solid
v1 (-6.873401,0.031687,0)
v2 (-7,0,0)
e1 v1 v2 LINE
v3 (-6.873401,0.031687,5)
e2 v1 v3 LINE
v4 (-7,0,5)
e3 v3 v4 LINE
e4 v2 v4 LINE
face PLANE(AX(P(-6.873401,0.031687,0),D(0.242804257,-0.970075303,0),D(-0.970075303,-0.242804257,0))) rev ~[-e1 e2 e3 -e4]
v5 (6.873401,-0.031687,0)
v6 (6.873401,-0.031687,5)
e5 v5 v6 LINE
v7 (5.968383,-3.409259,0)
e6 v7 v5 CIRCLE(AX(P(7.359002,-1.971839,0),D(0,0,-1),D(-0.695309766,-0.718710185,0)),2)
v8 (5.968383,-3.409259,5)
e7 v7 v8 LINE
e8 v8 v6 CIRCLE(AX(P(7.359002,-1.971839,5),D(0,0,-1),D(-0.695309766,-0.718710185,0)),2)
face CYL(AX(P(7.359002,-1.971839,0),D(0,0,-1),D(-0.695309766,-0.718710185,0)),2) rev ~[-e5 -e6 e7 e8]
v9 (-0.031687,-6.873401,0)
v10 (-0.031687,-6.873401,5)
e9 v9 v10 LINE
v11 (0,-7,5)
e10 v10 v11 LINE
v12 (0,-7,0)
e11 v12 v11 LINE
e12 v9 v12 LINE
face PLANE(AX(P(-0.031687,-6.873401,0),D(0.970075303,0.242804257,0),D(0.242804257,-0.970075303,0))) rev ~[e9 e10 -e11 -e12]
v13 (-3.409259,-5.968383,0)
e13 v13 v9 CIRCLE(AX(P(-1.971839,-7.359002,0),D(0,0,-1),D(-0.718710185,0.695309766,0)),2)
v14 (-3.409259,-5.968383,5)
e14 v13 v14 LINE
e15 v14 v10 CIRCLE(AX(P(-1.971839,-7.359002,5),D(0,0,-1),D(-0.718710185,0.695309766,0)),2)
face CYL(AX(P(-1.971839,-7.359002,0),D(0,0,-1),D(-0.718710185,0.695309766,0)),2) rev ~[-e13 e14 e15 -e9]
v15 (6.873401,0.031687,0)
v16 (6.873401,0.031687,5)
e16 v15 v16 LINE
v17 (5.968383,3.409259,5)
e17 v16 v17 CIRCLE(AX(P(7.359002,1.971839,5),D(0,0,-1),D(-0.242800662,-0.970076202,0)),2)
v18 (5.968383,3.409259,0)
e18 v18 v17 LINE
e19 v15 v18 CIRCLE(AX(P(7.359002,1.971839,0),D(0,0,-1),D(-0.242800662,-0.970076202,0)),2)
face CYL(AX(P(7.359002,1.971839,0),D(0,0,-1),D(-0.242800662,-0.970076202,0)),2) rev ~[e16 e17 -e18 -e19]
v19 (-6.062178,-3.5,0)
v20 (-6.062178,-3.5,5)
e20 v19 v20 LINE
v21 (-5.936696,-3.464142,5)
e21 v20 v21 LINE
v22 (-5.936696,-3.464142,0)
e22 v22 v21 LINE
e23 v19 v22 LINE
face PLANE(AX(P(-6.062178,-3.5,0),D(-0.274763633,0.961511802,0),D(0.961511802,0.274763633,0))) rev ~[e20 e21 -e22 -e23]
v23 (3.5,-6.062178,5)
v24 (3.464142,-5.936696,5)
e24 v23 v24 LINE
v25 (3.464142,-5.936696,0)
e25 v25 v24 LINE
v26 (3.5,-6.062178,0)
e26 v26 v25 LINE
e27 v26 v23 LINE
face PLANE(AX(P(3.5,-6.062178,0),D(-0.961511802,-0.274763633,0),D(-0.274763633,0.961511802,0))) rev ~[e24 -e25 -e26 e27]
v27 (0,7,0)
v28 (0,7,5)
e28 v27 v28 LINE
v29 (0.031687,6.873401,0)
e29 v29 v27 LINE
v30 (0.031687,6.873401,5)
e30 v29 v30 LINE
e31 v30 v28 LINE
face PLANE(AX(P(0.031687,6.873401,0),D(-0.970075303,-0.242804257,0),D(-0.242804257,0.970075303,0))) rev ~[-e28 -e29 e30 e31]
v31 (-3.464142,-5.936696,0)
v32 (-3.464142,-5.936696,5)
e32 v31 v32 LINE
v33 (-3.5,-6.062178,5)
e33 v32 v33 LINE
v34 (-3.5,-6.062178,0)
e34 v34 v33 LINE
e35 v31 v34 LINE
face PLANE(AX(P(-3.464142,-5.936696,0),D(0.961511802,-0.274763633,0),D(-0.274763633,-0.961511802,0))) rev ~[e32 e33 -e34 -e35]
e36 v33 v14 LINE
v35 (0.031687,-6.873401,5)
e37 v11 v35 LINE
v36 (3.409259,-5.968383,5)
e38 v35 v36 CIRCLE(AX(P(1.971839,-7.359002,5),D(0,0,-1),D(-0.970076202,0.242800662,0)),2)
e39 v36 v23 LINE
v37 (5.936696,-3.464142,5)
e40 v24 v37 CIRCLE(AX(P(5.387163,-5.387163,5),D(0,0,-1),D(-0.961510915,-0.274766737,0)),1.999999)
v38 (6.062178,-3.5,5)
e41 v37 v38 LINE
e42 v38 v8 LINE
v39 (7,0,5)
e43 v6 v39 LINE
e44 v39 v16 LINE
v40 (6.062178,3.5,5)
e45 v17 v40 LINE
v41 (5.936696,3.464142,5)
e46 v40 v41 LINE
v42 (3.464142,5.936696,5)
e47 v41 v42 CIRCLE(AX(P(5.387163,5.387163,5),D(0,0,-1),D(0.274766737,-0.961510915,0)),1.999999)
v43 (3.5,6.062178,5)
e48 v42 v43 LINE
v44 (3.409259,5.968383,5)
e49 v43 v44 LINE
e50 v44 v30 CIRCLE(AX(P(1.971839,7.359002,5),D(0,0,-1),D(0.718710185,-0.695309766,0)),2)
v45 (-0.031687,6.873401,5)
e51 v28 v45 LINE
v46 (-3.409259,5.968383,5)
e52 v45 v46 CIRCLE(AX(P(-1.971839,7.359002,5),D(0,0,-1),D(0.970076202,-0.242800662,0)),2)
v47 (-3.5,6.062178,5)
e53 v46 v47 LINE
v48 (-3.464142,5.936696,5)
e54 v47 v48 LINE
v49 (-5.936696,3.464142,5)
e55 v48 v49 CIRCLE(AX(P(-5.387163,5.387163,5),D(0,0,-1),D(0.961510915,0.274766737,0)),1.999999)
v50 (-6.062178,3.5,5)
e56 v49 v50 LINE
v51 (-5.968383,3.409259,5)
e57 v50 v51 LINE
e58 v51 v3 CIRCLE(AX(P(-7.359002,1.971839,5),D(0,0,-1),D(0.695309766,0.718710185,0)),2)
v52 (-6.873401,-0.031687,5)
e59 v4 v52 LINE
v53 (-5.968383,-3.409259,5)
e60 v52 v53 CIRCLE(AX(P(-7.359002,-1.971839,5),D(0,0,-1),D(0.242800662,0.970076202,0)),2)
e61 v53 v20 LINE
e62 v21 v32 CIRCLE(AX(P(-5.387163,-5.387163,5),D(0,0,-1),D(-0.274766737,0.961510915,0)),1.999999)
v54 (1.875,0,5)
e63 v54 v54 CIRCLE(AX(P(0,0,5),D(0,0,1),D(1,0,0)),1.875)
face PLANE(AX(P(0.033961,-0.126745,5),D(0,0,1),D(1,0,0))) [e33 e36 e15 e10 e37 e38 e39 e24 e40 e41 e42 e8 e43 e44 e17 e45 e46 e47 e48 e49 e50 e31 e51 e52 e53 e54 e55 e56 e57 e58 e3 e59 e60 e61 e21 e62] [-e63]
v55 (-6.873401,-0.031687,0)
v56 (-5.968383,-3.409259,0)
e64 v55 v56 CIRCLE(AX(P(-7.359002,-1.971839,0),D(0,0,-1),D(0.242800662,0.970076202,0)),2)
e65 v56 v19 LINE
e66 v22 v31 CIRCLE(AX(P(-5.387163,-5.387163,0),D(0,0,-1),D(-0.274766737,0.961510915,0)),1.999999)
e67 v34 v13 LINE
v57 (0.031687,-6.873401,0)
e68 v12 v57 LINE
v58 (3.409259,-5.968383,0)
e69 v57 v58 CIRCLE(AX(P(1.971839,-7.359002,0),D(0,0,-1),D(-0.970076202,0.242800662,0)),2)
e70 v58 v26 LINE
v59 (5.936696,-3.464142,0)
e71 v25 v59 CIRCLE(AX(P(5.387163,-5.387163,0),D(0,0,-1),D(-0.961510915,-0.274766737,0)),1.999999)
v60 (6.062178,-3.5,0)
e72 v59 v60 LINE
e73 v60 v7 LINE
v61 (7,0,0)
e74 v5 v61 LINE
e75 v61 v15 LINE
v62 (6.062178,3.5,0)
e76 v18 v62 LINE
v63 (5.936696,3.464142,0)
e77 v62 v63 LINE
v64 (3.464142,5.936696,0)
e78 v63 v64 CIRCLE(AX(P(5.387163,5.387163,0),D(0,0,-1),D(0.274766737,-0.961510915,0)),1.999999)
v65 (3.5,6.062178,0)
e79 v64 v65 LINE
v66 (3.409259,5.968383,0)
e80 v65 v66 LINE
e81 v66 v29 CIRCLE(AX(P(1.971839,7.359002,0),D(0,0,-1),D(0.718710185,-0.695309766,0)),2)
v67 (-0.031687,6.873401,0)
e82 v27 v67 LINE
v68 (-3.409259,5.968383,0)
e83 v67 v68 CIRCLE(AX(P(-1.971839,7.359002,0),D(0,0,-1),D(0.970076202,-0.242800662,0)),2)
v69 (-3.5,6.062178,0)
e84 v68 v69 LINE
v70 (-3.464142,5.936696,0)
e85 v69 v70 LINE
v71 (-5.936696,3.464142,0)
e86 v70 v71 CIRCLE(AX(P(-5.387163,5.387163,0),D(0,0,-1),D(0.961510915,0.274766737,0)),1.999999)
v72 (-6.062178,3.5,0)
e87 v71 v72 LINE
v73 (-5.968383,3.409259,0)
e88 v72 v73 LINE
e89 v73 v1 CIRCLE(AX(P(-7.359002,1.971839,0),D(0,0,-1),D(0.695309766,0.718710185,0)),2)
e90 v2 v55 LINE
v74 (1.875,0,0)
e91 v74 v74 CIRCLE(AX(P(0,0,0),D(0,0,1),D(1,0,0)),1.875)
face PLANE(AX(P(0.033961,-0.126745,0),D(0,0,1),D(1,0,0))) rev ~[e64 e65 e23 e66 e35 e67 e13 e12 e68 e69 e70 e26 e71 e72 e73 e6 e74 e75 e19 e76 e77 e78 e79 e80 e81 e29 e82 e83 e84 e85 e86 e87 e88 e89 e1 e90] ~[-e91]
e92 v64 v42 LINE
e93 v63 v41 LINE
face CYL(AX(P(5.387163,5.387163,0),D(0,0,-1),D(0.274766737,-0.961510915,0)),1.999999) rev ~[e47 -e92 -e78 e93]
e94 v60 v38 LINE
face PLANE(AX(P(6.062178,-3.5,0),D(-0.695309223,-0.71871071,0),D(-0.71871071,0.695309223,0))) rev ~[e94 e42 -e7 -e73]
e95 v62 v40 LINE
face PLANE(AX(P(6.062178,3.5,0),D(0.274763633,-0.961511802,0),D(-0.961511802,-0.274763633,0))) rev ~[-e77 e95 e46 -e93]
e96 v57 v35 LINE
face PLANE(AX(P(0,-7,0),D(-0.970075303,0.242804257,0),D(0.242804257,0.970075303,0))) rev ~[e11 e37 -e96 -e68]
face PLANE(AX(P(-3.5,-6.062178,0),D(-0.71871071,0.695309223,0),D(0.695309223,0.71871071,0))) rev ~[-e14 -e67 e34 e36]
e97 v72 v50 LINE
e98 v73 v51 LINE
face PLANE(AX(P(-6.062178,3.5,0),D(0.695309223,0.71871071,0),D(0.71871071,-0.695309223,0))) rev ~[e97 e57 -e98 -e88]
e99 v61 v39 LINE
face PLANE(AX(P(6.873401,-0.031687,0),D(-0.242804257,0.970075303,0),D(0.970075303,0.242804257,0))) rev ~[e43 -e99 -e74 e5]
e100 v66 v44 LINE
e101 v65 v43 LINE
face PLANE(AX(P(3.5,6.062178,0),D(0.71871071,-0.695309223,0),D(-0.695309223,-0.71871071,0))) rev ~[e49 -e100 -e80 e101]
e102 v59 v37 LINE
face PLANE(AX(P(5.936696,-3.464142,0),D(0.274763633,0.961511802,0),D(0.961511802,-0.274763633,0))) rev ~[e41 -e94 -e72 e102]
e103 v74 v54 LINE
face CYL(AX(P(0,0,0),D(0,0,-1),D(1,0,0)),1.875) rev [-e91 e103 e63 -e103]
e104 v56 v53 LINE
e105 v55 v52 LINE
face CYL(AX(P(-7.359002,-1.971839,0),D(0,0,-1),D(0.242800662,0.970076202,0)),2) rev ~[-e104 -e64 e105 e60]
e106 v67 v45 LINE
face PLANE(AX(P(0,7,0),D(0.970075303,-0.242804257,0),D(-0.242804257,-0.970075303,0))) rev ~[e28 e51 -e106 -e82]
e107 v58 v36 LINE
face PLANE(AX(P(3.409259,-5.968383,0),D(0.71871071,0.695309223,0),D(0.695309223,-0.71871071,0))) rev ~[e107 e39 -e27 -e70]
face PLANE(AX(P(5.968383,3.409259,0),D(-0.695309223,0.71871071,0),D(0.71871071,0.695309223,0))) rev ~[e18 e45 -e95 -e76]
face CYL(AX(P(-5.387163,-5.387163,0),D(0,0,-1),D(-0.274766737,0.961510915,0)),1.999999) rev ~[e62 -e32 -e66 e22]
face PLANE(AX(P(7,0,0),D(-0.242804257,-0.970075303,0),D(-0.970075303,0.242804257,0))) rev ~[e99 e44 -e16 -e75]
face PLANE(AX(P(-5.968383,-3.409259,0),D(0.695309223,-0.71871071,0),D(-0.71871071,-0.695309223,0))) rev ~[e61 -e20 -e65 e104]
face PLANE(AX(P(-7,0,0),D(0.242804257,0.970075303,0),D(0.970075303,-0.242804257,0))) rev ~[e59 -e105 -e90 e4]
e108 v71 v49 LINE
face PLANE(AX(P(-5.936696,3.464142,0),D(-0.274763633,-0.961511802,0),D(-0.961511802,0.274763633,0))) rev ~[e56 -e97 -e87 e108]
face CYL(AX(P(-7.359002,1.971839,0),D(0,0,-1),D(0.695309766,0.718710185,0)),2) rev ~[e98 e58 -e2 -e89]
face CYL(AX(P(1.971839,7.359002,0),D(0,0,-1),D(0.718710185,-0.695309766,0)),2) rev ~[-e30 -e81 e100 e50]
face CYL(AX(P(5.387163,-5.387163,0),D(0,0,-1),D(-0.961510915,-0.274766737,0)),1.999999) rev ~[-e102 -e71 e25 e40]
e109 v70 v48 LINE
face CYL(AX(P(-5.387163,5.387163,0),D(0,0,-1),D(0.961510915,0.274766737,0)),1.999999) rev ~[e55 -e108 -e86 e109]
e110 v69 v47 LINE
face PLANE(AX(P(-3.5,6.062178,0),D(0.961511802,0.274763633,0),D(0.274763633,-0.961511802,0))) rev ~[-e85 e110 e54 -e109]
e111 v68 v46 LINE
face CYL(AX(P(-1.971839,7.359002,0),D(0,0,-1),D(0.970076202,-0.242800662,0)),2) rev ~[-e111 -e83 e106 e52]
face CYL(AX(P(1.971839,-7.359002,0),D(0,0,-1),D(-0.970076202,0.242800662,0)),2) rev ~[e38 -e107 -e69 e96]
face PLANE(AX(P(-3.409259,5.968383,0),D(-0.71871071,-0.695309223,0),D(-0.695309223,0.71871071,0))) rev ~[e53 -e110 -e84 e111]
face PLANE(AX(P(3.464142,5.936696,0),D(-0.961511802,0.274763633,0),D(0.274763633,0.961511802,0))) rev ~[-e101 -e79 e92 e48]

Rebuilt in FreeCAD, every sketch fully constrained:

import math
import FreeCAD as App
import Part
import Sketcher
Q = App.Units.Quantity

doc = App.newDocument("Part")
body = doc.addObject("PartDesign::Body", "Body")

sketch1 = doc.addObject("Sketcher::SketchObject", "Sketch")
body.addObject(sketch1)
sketch1.AttachmentSupport = (doc.XY_Plane, [""])
sketch1.MapMode = "FlatFace"
sketch1.addGeometry(Part.LineSegment(App.Vector(-3.41, 5.97, 0), App.Vector(-3.5, 6.06, 0)), False)
sketch1.addGeometry(Part.LineSegment(App.Vector(-3.5, 6.06, 0), App.Vector(-3.46, 5.94, 0)), False)
sketch1.addGeometry(Part.ArcOfCircle(Part.Circle(App.Vector(-5.39, 5.39, 0), App.Vector(0, 0, 1), 2), math.radians(-106), math.radians(16)), False)
sketch1.addGeometry(Part.LineSegment(App.Vector(-5.94, 3.46, 0), App.Vector(-6.06, 3.5, 0)), False)
sketch1.addGeometry(Part.LineSegment(App.Vector(-6.06, 3.5, 0), App.Vector(-5.97, 3.41, 0)), False)
sketch1.addGeometry(Part.ArcOfCircle(Part.Circle(App.Vector(-7.36, 1.97, 0), App.Vector(0, 0, 1), 2), math.radians(-76), math.radians(46)), False)
sketch1.addGeometry(Part.LineSegment(App.Vector(-6.87, 0.03, 0), App.Vector(-7, 0, 0)), False)
sketch1.addGeometry(Part.LineSegment(App.Vector(-7, 0, 0), App.Vector(-6.87, -0.03, 0)), False)
sketch1.addGeometry(Part.ArcOfCircle(Part.Circle(App.Vector(-7.36, -1.97, 0), App.Vector(0, 0, 1), 2), math.radians(-46), math.radians(76)), False)
sketch1.addGeometry(Part.LineSegment(App.Vector(-5.97, -3.41, 0), App.Vector(-6.06, -3.5, 0)), False)
sketch1.addGeometry(Part.LineSegment(App.Vector(-6.06, -3.5, 0), App.Vector(-5.94, -3.46, 0)), False)
sketch1.addGeometry(Part.ArcOfCircle(Part.Circle(App.Vector(-5.39, -5.39, 0), App.Vector(0, 0, 1), 2), math.radians(-16), math.radians(106)), False)
sketch1.addGeometry(Part.LineSegment(App.Vector(-3.46, -5.94, 0), App.Vector(-3.5, -6.06, 0)), False)
sketch1.addGeometry(Part.LineSegment(App.Vector(-3.5, -6.06, 0), App.Vector(-3.41, -5.97, 0)), False)
sketch1.addGeometry(Part.ArcOfCircle(Part.Circle(App.Vector(-1.97, -7.36, 0), App.Vector(0, 0, 1), 2), math.radians(14), math.radians(136)), False)
sketch1.addGeometry(Part.LineSegment(App.Vector(-0.03, -6.87, 0), App.Vector(0, -7, 0)), False)
sketch1.addGeometry(Part.LineSegment(App.Vector(0, -7, 0), App.Vector(0.03, -6.87, 0)), False)
sketch1.addGeometry(Part.ArcOfCircle(Part.Circle(App.Vector(1.97, -7.36, 0), App.Vector(0, 0, 1), 2), math.radians(44), math.radians(166)), False)
sketch1.addGeometry(Part.LineSegment(App.Vector(3.41, -5.97, 0), App.Vector(3.5, -6.06, 0)), False)
sketch1.addGeometry(Part.LineSegment(App.Vector(3.5, -6.06, 0), App.Vector(3.46, -5.94, 0)), False)
sketch1.addGeometry(Part.ArcOfCircle(Part.Circle(App.Vector(5.39, -5.39, 0), App.Vector(0, 0, 1), 2), math.radians(74), math.radians(196)), False)
sketch1.addGeometry(Part.LineSegment(App.Vector(5.94, -3.46, 0), App.Vector(6.06, -3.5, 0)), False)
sketch1.addGeometry(Part.LineSegment(App.Vector(6.06, -3.5, 0), App.Vector(5.97, -3.41, 0)), False)
sketch1.addGeometry(Part.ArcOfCircle(Part.Circle(App.Vector(7.36, -1.97, 0), App.Vector(0, 0, 1), 2), math.radians(104), math.radians(226)), False)
sketch1.addGeometry(Part.LineSegment(App.Vector(6.87, -0.03, 0), App.Vector(7, 0, 0)), False)
sketch1.addGeometry(Part.LineSegment(App.Vector(7, 0, 0), App.Vector(6.87, 0.03, 0)), False)
sketch1.addGeometry(Part.ArcOfCircle(Part.Circle(App.Vector(7.36, 1.97, 0), App.Vector(0, 0, 1), 2), math.radians(134), math.radians(256)), False)
sketch1.addGeometry(Part.LineSegment(App.Vector(5.97, 3.41, 0), App.Vector(6.06, 3.5, 0)), False)
sketch1.addGeometry(Part.LineSegment(App.Vector(6.06, 3.5, 0), App.Vector(5.94, 3.46, 0)), False)
sketch1.addGeometry(Part.ArcOfCircle(Part.Circle(App.Vector(5.39, 5.39, 0), App.Vector(0, 0, 1), 2), math.radians(164), math.radians(286)), False)
sketch1.addGeometry(Part.LineSegment(App.Vector(3.46, 5.94, 0), App.Vector(3.5, 6.06, 0)), False)
sketch1.addGeometry(Part.LineSegment(App.Vector(3.5, 6.06, 0), App.Vector(3.41, 5.97, 0)), False)
sketch1.addGeometry(Part.ArcOfCircle(Part.Circle(App.Vector(1.97, 7.36, 0), App.Vector(0, 0, 1), 2), math.radians(-166), math.radians(-44)), False)
sketch1.addGeometry(Part.LineSegment(App.Vector(0.03, 6.87, 0), App.Vector(0, 7, 0)), False)
sketch1.addGeometry(Part.LineSegment(App.Vector(0, 7, 0), App.Vector(-0.03, 6.87, 0)), False)
sketch1.addGeometry(Part.ArcOfCircle(Part.Circle(App.Vector(-1.97, 7.36, 0), App.Vector(0, 0, 1), 2), math.radians(-136), math.radians(-14)), False)
sketch1.addGeometry(Part.Circle(App.Vector(0, 0, 0), App.Vector(0, 0, 1), 1.88), False)
sketch1.addConstraint(Sketcher.Constraint("Coincident", 0, 2, 1, 1))
sketch1.addConstraint(Sketcher.Constraint("Coincident", 1, 2, 2, 2))
sketch1.addConstraint(Sketcher.Constraint("Coincident", 2, 1, 3, 1))
sketch1.addConstraint(Sketcher.Constraint("Coincident", 3, 2, 4, 1))
sketch1.addConstraint(Sketcher.Constraint("Tangent", 4, 2, 5, 2))
sketch1.addConstraint(Sketcher.Constraint("Coincident", 5, 1, 6, 1))
sketch1.addConstraint(Sketcher.Constraint("Coincident", 6, 2, 7, 1))
sketch1.addConstraint(Sketcher.Constraint("Coincident", 7, 2, 8, 2))
sketch1.addConstraint(Sketcher.Constraint("Tangent", 8, 1, 9, 1))
sketch1.addConstraint(Sketcher.Constraint("Coincident", 9, 2, 10, 1))
sketch1.addConstraint(Sketcher.Constraint("Coincident", 10, 2, 11, 2))
sketch1.addConstraint(Sketcher.Constraint("Coincident", 11, 1, 12, 1))
sketch1.addConstraint(Sketcher.Constraint("Coincident", 12, 2, 13, 1))
sketch1.addConstraint(Sketcher.Constraint("Tangent", 13, 2, 14, 2))
sketch1.addConstraint(Sketcher.Constraint("Coincident", 14, 1, 15, 1))
sketch1.addConstraint(Sketcher.Constraint("Coincident", 15, 2, 16, 1))
sketch1.addConstraint(Sketcher.Constraint("Coincident", 16, 2, 17, 2))
sketch1.addConstraint(Sketcher.Constraint("Tangent", 17, 1, 18, 1))
sketch1.addConstraint(Sketcher.Constraint("Coincident", 18, 2, 19, 1))
sketch1.addConstraint(Sketcher.Constraint("Coincident", 19, 2, 20, 2))
sketch1.addConstraint(Sketcher.Constraint("Coincident", 20, 1, 21, 1))
sketch1.addConstraint(Sketcher.Constraint("Coincident", 21, 2, 22, 1))
sketch1.addConstraint(Sketcher.Constraint("Tangent", 22, 2, 23, 2))
sketch1.addConstraint(Sketcher.Constraint("Coincident", 23, 1, 24, 1))
sketch1.addConstraint(Sketcher.Constraint("Coincident", 24, 2, 25, 1))
sketch1.addConstraint(Sketcher.Constraint("Coincident", 25, 2, 26, 2))
sketch1.addConstraint(Sketcher.Constraint("Tangent", 26, 1, 27, 1))
sketch1.addConstraint(Sketcher.Constraint("Coincident", 27, 2, 28, 1))
sketch1.addConstraint(Sketcher.Constraint("Coincident", 28, 2, 29, 2))
sketch1.addConstraint(Sketcher.Constraint("Coincident", 29, 1, 30, 1))
sketch1.addConstraint(Sketcher.Constraint("Coincident", 30, 2, 31, 1))
sketch1.addConstraint(Sketcher.Constraint("Tangent", 31, 2, 32, 2))
sketch1.addConstraint(Sketcher.Constraint("Coincident", 32, 1, 33, 1))
sketch1.addConstraint(Sketcher.Constraint("Coincident", 33, 2, 34, 1))
sketch1.addConstraint(Sketcher.Constraint("Coincident", 34, 2, 35, 2))
sketch1.addConstraint(Sketcher.Constraint("Tangent", 35, 1, 0, 1))
sketch1.addConstraint(Sketcher.Constraint("Coincident", 36, 3, -1, 1))
sketch1.addConstraint(Sketcher.Constraint("Equal", 2, 5))
sketch1.addConstraint(Sketcher.Constraint("Equal", 5, 8))
sketch1.addConstraint(Sketcher.Constraint("Equal", 8, 11))
sketch1.addConstraint(Sketcher.Constraint("Equal", 11, 14))
sketch1.addConstraint(Sketcher.Constraint("Equal", 14, 17))
sketch1.addConstraint(Sketcher.Constraint("Equal", 17, 20))
sketch1.addConstraint(Sketcher.Constraint("Equal", 20, 23))
sketch1.addConstraint(Sketcher.Constraint("Equal", 23, 26))
sketch1.addConstraint(Sketcher.Constraint("Equal", 26, 29))
sketch1.addConstraint(Sketcher.Constraint("Equal", 29, 32))
sketch1.addConstraint(Sketcher.Constraint("Equal", 32, 35))
sketch1.addConstraint(Sketcher.Constraint("Symmetric", 2, 3, 20, 3, -1, 1))
sketch1.addConstraint(Sketcher.Constraint("Symmetric", 5, 3, 23, 3, -1, 1))
sketch1.addConstraint(Sketcher.Constraint("Symmetric", 8, 3, 26, 3, -1, 1))
sketch1.addConstraint(Sketcher.Constraint("Symmetric", 11, 3, 29, 3, -1, 1))
sketch1.addConstraint(Sketcher.Constraint("Symmetric", 14, 3, 32, 3, -1, 1))
sketch1.addConstraint(Sketcher.Constraint("Symmetric", 17, 3, 35, 3, -1, 1))
sketch1.addConstraint(Sketcher.Constraint("Symmetric", 0, 2, 18, 2, -1, 1))
sketch1.addConstraint(Sketcher.Constraint("Symmetric", 3, 2, 21, 2, -1, 1))
sketch1.addConstraint(Sketcher.Constraint("Symmetric", 6, 2, 24, 2, -1, 1))
sketch1.addConstraint(Sketcher.Constraint("Symmetric", 9, 2, 27, 2, -1, 1))
sketch1.addConstraint(Sketcher.Constraint("Symmetric", 12, 2, 30, 2, -1, 1))
sketch1.addConstraint(Sketcher.Constraint("Symmetric", 15, 2, 33, 2, -1, 1))
sketch1.addConstraint(Sketcher.Constraint("Symmetric", 14, 3, 17, 3, -2))
sketch1.addConstraint(Sketcher.Constraint("Symmetric", 11, 3, 20, 3, -2))
sketch1.addConstraint(Sketcher.Constraint("Symmetric", 8, 3, 23, 3, -2))
sketch1.addConstraint(Sketcher.Constraint("Symmetric", 12, 2, 18, 2, -2))
sketch1.addConstraint(Sketcher.Constraint("Symmetric", 9, 2, 21, 2, -2))
sketch1.addConstraint(Sketcher.Constraint("PointOnObject", 6, 2, -1))
sketch1.addConstraint(Sketcher.Constraint("PointOnObject", 15, 2, -2))
sketch1.addConstraint(Sketcher.Constraint("Perpendicular", 0, 9))
sketch1.addConstraint(Sketcher.Constraint("Perpendicular", 1, 10))
sketch1.addConstraint(Sketcher.Constraint("Perpendicular", 6, 15))
sketch1.addConstraint(Sketcher.Constraint("Horizontal", 14, 1, 16, 2))
sketch1.addConstraint(Sketcher.Constraint("Horizontal", 11, 1, 19, 2))
sketch1.addConstraint(Sketcher.Constraint("Horizontal", 10, 2, 20, 1))
sketch1.addConstraint(Sketcher.Constraint("Horizontal", 7, 2, 23, 1))
sketch1.addConstraint(Sketcher.Constraint("Horizontal", 5, 1, 25, 2))
sketch1.addConstraint(Sketcher.Constraint("Horizontal", 2, 1, 28, 2))
sketch1.addConstraint(Sketcher.Constraint("Horizontal", 1, 2, 29, 1))
sketch1.addConstraint(Sketcher.Constraint("Horizontal", 32, 1, 34, 2))
sketch1.addConstraint(Sketcher.Constraint("Vertical", 5, 1, 7, 2))
sketch1.addConstraint(Sketcher.Constraint("Vertical", 2, 1, 10, 2))
sketch1.addConstraint(Sketcher.Constraint("Vertical", 1, 2, 11, 1))
sketch1.addConstraint(Sketcher.Constraint("Vertical", 16, 2, 32, 1))
sketch1.addConstraint(Sketcher.Constraint("Equal", 0, 1))
sketch1.addConstraint(Sketcher.Constraint("Equal", 1, 3))
sketch1.addConstraint(Sketcher.Constraint("Equal", 3, 4))
sketch1.addConstraint(Sketcher.Constraint("Equal", 4, 6))
sketch1.addConstraint(Sketcher.Constraint("Equal", 13, 15))
sketch1.addConstraint(Sketcher.Constraint("Radius", 2, Q("1.999999 mm")))
sketch1.addConstraint(Sketcher.Constraint("Diameter", 36, Q("3.75 mm")))
sketch1.addConstraint(Sketcher.Constraint("DistanceX", 6, 2, -1, 1, Q("7 mm")))
sketch1.addConstraint(Sketcher.Constraint("DistanceY", 15, 2, -1, 1, Q("7 mm")))
sketch1.addConstraint(Sketcher.Constraint("DistanceX", 0, 2, -1, 1, Q("3.5 mm")))
sketch1.addConstraint(Sketcher.Constraint("DistanceY", -1, 1, 3, 2, Q("3.5 mm")))
sketch1.addConstraint(Sketcher.Constraint("DistanceY", 8, 3, 2, 3, Q("7.359002 mm")))
sketch1.addConstraint(Sketcher.Constraint("DistanceX", 5, 1, -1, 1, Q("6.873401 mm")))
sketch1.addConstraint(Sketcher.Constraint("DistanceX", 5, 3, 5, 1, Q("0.485601 mm")))
sketch1.addConstraint(Sketcher.Constraint("DistanceY", -1, 1, 5, 3, Q("1.971839 mm")))
pad1 = doc.addObject("PartDesign::Pad", "Pad")
body.addObject(pad1)
pad1.Profile = sketch1
pad1.Length = 5

doc.recompute()
